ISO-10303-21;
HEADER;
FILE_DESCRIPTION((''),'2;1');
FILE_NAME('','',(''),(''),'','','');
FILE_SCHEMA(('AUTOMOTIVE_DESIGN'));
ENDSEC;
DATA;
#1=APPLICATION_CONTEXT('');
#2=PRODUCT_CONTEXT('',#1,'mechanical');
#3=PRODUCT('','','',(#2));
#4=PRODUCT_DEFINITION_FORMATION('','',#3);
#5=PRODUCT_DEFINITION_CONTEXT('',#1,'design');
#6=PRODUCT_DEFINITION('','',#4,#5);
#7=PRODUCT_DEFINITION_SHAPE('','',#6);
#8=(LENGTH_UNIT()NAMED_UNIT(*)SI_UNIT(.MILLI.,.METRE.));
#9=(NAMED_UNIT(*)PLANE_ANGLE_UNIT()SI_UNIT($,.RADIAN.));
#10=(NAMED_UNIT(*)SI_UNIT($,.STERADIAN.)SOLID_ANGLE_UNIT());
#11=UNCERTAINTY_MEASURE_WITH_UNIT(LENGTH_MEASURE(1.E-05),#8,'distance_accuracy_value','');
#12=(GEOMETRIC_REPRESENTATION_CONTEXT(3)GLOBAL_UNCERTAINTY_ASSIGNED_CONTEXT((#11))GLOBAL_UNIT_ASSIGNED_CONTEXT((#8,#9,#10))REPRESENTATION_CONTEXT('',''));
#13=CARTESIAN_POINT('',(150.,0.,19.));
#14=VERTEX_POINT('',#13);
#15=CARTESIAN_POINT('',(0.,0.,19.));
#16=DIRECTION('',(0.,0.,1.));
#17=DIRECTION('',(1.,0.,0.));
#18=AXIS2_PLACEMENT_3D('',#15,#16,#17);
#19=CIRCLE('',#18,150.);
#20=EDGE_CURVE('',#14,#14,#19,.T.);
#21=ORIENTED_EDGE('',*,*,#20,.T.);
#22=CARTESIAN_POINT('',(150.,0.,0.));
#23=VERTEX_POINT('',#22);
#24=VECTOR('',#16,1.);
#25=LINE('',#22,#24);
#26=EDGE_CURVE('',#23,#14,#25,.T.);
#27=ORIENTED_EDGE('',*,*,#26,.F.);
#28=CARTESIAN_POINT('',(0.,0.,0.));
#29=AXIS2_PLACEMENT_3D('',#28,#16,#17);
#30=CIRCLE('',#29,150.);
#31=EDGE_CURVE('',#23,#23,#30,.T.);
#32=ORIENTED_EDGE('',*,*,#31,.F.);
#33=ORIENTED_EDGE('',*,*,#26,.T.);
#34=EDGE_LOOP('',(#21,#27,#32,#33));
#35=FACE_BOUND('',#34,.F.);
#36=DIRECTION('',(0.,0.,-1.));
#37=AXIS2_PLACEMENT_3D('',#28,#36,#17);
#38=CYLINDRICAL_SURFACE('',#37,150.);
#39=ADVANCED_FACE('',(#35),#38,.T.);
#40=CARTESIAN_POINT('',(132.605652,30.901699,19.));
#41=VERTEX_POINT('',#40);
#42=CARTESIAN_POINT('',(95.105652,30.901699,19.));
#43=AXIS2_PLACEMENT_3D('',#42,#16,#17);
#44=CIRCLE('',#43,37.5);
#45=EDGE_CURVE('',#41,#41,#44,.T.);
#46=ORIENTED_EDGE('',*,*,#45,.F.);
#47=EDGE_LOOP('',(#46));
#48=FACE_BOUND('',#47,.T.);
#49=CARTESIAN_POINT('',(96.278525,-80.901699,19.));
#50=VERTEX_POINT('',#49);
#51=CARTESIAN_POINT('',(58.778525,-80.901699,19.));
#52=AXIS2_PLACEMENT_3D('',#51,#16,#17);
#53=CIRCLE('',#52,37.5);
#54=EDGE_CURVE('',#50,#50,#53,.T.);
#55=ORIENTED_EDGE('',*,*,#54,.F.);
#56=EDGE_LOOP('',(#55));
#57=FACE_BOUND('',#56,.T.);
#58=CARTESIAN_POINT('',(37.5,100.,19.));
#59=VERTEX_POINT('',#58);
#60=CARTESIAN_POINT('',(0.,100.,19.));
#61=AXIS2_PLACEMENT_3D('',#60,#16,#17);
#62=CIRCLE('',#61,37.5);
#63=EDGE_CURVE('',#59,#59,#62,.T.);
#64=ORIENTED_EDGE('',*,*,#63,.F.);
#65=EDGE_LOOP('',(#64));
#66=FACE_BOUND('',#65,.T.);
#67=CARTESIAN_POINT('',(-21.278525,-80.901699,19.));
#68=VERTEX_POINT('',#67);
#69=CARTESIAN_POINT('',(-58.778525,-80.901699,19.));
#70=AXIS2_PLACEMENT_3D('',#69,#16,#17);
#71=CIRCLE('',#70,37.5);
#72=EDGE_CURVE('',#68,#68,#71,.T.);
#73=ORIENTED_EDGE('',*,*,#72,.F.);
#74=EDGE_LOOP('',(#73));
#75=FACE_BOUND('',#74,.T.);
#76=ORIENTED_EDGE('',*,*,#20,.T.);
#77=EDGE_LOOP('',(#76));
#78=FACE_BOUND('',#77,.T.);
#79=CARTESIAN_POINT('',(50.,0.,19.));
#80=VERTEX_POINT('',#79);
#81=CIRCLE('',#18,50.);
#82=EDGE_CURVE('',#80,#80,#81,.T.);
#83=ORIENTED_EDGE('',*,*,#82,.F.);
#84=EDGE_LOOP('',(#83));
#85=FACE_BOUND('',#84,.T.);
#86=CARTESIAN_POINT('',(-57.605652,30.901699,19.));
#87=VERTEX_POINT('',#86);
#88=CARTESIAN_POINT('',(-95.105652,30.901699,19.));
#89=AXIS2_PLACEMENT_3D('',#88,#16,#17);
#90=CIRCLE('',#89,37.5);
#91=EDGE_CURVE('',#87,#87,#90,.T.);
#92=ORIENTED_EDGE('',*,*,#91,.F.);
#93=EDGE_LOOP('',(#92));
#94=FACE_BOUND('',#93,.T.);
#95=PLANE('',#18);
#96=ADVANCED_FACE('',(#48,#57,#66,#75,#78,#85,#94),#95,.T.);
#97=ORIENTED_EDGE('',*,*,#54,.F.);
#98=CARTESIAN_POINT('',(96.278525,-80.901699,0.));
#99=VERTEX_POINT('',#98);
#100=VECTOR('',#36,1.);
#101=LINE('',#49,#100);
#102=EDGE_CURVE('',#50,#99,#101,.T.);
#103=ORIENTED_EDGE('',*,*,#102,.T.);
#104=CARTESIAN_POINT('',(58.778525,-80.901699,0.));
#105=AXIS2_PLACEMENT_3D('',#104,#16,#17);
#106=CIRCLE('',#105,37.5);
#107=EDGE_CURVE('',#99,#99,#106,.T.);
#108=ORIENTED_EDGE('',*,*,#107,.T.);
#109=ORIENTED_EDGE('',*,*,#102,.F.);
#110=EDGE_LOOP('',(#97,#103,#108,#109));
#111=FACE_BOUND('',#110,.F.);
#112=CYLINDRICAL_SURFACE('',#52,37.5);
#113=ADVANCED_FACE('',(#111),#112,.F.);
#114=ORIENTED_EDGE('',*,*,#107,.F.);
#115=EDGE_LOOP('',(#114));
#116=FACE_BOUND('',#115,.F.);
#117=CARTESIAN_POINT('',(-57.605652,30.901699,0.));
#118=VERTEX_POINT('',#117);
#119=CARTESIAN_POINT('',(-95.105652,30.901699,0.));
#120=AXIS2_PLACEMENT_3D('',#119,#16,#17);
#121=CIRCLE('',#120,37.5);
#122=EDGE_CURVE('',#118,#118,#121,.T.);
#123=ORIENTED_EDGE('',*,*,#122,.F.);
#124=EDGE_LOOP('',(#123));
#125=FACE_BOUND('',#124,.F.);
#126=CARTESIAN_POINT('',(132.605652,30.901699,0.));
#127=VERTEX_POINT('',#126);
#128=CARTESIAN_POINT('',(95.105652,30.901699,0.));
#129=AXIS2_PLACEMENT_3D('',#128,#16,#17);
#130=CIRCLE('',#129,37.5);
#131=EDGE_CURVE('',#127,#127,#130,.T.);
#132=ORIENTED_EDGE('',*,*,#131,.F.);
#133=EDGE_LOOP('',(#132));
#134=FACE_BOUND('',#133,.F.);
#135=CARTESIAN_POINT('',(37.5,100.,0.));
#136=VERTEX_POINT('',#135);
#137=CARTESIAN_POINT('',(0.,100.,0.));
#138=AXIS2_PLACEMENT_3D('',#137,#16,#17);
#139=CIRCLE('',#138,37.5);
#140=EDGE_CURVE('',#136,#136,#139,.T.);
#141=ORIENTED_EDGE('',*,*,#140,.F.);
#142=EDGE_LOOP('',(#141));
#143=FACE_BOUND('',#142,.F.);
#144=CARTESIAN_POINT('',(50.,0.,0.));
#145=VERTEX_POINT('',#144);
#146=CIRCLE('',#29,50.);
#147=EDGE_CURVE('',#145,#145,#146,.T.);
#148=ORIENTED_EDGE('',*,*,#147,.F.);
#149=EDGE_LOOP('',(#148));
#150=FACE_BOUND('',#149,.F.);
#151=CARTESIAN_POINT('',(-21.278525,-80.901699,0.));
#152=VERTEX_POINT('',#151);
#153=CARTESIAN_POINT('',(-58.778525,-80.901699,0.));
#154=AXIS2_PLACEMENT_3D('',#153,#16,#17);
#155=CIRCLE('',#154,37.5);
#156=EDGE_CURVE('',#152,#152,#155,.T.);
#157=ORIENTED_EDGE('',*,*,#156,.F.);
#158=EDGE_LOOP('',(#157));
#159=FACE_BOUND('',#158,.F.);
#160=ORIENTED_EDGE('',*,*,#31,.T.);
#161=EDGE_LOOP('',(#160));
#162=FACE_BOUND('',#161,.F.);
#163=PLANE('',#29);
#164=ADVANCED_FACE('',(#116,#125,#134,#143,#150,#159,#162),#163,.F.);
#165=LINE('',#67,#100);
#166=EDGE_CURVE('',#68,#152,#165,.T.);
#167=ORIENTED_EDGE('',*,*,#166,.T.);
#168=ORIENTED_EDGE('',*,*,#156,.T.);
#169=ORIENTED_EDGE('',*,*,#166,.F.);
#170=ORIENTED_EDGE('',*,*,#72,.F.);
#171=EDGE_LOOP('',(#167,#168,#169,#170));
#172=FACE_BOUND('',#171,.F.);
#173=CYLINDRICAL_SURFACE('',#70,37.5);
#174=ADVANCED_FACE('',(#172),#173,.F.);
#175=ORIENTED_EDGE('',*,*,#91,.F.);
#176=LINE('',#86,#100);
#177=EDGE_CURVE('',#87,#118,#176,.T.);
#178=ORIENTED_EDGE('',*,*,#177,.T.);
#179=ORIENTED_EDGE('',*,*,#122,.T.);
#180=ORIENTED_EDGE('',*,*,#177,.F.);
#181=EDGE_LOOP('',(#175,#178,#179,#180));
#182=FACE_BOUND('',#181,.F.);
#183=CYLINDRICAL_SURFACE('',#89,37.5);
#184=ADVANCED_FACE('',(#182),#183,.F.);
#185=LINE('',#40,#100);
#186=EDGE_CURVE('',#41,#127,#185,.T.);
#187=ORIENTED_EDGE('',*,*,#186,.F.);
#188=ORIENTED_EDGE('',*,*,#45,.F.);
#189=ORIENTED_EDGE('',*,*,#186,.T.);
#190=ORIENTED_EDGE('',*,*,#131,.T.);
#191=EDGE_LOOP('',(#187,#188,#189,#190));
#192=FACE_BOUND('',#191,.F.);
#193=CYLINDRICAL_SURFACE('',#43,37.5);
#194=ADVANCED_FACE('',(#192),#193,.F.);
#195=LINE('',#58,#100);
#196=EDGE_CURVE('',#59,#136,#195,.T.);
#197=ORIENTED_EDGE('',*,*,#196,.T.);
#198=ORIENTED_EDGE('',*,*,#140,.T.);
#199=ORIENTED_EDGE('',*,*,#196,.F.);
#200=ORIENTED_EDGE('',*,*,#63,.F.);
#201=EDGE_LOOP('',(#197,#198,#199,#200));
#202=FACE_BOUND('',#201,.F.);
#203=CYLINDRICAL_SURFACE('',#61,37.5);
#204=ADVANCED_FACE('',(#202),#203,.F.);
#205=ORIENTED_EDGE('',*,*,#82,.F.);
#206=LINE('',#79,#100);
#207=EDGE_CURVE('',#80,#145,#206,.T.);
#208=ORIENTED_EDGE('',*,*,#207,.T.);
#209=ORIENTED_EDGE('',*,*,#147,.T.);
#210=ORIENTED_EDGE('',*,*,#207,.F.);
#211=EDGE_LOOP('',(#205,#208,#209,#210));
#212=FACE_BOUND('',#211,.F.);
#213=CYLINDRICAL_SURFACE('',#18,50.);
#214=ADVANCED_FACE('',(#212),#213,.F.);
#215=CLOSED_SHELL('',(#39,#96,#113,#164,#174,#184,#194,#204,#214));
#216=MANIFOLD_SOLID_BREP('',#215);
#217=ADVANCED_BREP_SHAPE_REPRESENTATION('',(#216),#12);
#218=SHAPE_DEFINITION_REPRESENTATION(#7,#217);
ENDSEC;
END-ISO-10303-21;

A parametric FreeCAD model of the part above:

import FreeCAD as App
import Part
import Sketcher

V = App.Vector
Q = App.Units.Quantity

doc = App.newDocument("Part")
params = doc.addObject("Spreadsheet::Sheet", "Params")
for row, (alias, value) in enumerate([
    ("sketch1_diameter", "300 mm"),
    ("pad1_length", "19 mm"),
    ("sketch2_diameter", "100 mm"),
    ("sketch2_diameter2", "75 mm"),
    ("pocket1_length", "53 mm"),
], start=1):
    params.set(f"A{row}", alias)
    params.set(f"B{row}", "=" + value)
    params.setAlias(f"B{row}", alias)

body = doc.addObject("PartDesign::Body", "Body")

sketch1 = body.newObject("Sketcher::SketchObject", "Sketch")
sketch1.AttachmentSupport = (doc.getObject("XY_Plane"), [""])
sketch1.MapMode = "FlatFace"
sketch1.addGeometry(Part.Circle(V(0, 0, 0), V(0, 0, 1), 150), False)
sketch1.addConstraint([
    Sketcher.Constraint("Coincident", 0, 3, -1, 1),
    Sketcher.Constraint("Diameter", 0, Q("300 mm")),
])
sketch1.setExpression("Constraints[1]", "Params.sketch1_diameter")
pad1 = body.newObject("PartDesign::Pad", "Pad")
pad1.Profile = sketch1
pad1.setExpression("Length", "Params.pad1_length")

sketch2 = body.newObject("Sketcher::SketchObject", "Sketch001")
sketch2.AttachmentSupport = (doc.getObject("XY_Plane"), [""])
sketch2.MapMode = "FlatFace"
sketch2.AttachmentOffset = App.Placement(V(0, 0, 19), App.Rotation())
sketch2.addGeometry([
    Part.Circle(V(0, 0, 0), V(0, 0, 1), 50),
    Part.Circle(V(0, 100, 0), V(0, 0, 1), 37.5),
    Part.Circle(V(-95.105652, 30.901699, 0), V(0, 0, 1), 37.5),
    Part.Circle(V(-58.778525, -80.901699, 0), V(0, 0, 1), 37.5),
    Part.Circle(V(58.778525, -80.901699, 0), V(0, 0, 1), 37.5),
    Part.Circle(V(95.105652, 30.901699, 0), V(0, 0, 1), 37.5),
], False)
sketch2.addConstraint([
    Sketcher.Constraint("Coincident", 0, 3, -1, 1),
    Sketcher.Constraint("Equal", 1, 2),
    Sketcher.Constraint("Equal", 2, 3),
    Sketcher.Constraint("Equal", 3, 4),
    Sketcher.Constraint("Equal", 4, 5),
    Sketcher.Constraint("Symmetric", 3, 3, 4, 3, -2),
    Sketcher.Constraint("Symmetric", 2, 3, 5, 3, -2),
    Sketcher.Constraint("PointOnObject", 1, 3, -2),
    Sketcher.Constraint("Diameter", 0, Q("100 mm")),
    Sketcher.Constraint("Diameter", 1, Q("75 mm")),
    Sketcher.Constraint("DistanceY", -1, 1, 1, 3, Q("100 mm")),
    Sketcher.Constraint("DistanceY", -1, 1, 2, 3, Q("30.901699 mm")),
    Sketcher.Constraint("DistanceY", 3, 3, -1, 1, Q("80.901699 mm")),
    Sketcher.Constraint("DistanceX", 3, 3, 4, 3, Q("117.55705 mm")),
    Sketcher.Constraint("DistanceX", 2, 3, -1, 1, Q("95.105652 mm")),
])
sketch2.setExpression("Constraints[8]", "Params.sketch2_diameter")
sketch2.setExpression("Constraints[9]", "Params.sketch2_diameter2")
pocket1 = body.newObject("PartDesign::Pocket", "Pocket")
pocket1.Profile = sketch2
pocket1.setExpression("Length", "Params.pocket1_length")

doc.recompute()
